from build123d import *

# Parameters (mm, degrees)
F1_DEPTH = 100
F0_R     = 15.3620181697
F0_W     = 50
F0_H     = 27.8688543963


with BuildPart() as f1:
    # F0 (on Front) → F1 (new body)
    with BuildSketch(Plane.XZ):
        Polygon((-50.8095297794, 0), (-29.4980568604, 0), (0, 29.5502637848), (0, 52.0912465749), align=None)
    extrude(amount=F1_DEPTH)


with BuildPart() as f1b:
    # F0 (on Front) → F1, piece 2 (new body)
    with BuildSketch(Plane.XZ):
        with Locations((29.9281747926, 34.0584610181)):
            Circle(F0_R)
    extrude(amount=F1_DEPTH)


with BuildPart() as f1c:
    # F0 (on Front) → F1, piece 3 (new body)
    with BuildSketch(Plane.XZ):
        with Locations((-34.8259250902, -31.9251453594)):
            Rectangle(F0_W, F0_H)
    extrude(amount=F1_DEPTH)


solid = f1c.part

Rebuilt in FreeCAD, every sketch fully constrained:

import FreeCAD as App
import Part
import Sketcher


def add_polygon(sketch, points):
    """Adds a closed chain of lines whose ends are joined by coincident constraints."""
    first, n = sketch.GeometryCount, len(points)
    for a, b in zip(points, points[1:] + points[:1]):
        sketch.addGeometry(Part.LineSegment(App.Vector(*a, 0), App.Vector(*b, 0)), False)
    for i in range(n):
        sketch.addConstraint(Sketcher.Constraint("Coincident", first + i, 2, first + (i + 1) % n, 1))

doc = App.newDocument("Part")
params = doc.addObject("Spreadsheet::Sheet", "Params")
for row, (alias, value) in enumerate([
    ("pad1_length", "100 mm"),
    ("pad2_length", "100 mm"),
    ("sketch3_width", "50 mm"),
    ("pad3_length", "100 mm"),
], start=1):
    params.set(f"A{row}", alias)
    params.set(f"B{row}", "=" + value)
    params.setAlias(f"B{row}", alias)

body = doc.addObject("PartDesign::Body", "Body")

# Sketch on XZ plane
sketch1 = body.newObject("Sketcher::SketchObject", "Sketch")
sketch1.AttachmentSupport = (doc.getObject("XZ_Plane"), [""])
sketch1.MapMode = "FlatFace"
add_polygon(sketch1, [(-50.80953, 0), (-29.498057, 0), (0, 29.550264), (0, 52.091247)])  # lines 0-3
sketch1.addConstraint([
    Sketcher.Constraint("Horizontal", 0),
    Sketcher.Constraint("Vertical", 2),
    Sketcher.Constraint("PointOnObject", 0, 2, -1),
    Sketcher.Constraint("PointOnObject", 1, 2, -2),
    Sketcher.Constraint("Distance", 3, 72.767481),
    Sketcher.Constraint("DistanceX", 0, 1, 0, 2, 21.311473),
    Sketcher.Constraint("DistanceY", 2, 1, 2, 2, 22.540983),
    Sketcher.Constraint("DistanceX", 3, 2, -1, 1, 50.80953),
])
pad1 = body.newObject("PartDesign::Pad", "Pad")
pad1.Profile = sketch1
pad1.setExpression("Length", "Params.pad1_length")
body2 = doc.addObject("PartDesign::Body", "Body001")

# Sketch on XZ plane
sketch2 = body2.newObject("Sketcher::SketchObject", "Sketch001")
sketch2.AttachmentSupport = (doc.getObject("XZ_Plane001"), [""])
sketch2.MapMode = "FlatFace"
sketch2.addGeometry(Part.Circle(App.Vector(29.928175, 34.058461, 0), App.Vector(0, 0, 1), 15.362018), False)
sketch2.addConstraint([
    Sketcher.Constraint("Diameter", 0, 30.724036),
    Sketcher.Constraint("DistanceY", -1, 1, 0, 3, 34.058461),
    Sketcher.Constraint("DistanceX", -1, 1, 0, 3, 29.928175),
])
pad2 = body2.newObject("PartDesign::Pad", "Pad001")
pad2.Profile = sketch2
pad2.setExpression("Length", "Params.pad2_length")
body3 = doc.addObject("PartDesign::Body", "Body002")

# Sketch on XZ plane
sketch3 = body3.newObject("Sketcher::SketchObject", "Sketch002")
sketch3.AttachmentSupport = (doc.getObject("XZ_Plane002"), [""])
sketch3.MapMode = "FlatFace"
add_polygon(sketch3, [(-59.825925, -17.990718), (-59.825925, -45.859573), (-9.825925, -45.859573), (-9.825925, -17.990718)])  # lines 0-3
sketch3.addConstraint([
    Sketcher.Constraint("Vertical", 0),
    Sketcher.Constraint("Horizontal", 1),
    Sketcher.Constraint("Vertical", 2),
    Sketcher.Constraint("Horizontal", 3),
    Sketcher.Constraint("DistanceX", 1, 1, 1, 2, 50.0),
    Sketcher.Constraint("DistanceY", 0, 2, 0, 1, 27.868854),
    Sketcher.Constraint("DistanceY", 2, 2, -1, 1, 17.990718),
    Sketcher.Constraint("DistanceX", 0, 2, -1, 1, 59.825925),
])
sketch3.setExpression("Constraints[8]", "Params.sketch3_width")
pad3 = body3.newObject("PartDesign::Pad", "Pad002")
pad3.Profile = sketch3
pad3.setExpression("Length", "Params.pad3_length")
body.Visibility = False
body2.Visibility = False

doc.recompute()
